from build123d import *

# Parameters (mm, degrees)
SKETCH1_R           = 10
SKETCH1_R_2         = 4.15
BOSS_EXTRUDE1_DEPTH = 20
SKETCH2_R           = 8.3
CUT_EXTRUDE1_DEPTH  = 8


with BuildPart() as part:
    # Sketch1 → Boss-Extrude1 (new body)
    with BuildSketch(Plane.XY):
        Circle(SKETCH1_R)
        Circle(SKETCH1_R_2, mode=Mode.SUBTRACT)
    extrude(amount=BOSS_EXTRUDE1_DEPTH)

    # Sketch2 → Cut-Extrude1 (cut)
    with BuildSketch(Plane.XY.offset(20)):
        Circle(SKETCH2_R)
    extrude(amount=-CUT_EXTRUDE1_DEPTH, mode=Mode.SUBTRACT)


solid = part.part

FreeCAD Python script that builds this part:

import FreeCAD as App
import Part
import Sketcher
from FreeCAD import Vector

doc = App.newDocument("Part")
params = doc.addObject("Spreadsheet::Sheet", "Params")
for row, (alias, value) in enumerate([
    ("sketch1_diameter", "20 mm"),
    ("sketch1_diameter2", "8.3 mm"),
    ("pad1_length", "20 mm"),
    ("sketch2_diameter", "16.6 mm"),
    ("pocket1_length", "8 mm"),
], start=1):
    params.set(f"A{row}", alias)
    params.set(f"B{row}", "=" + value)
    params.setAlias(f"B{row}", alias)

body = doc.addObject("PartDesign::Body", "Body")

# Sketch on XY plane
sketch1 = body.newObject("Sketcher::SketchObject", "Sketch")
sketch1.AttachmentSupport = (doc.getObject("XY_Plane"), [""])
sketch1.MapMode = "FlatFace"
sketch1.addGeometry(Part.Circle(Vector(0, 0, 0), Vector(0, 0, 1), 10), False)
sketch1.addGeometry(Part.Circle(Vector(0, 0, 0), Vector(0, 0, 1), 4.15), False)
sketch1.addConstraint(Sketcher.Constraint("Coincident", 0, 3, -1, 1))
sketch1.addConstraint(Sketcher.Constraint("Coincident", 1, 3, -1, 1))
sketch1.addConstraint(Sketcher.Constraint("Diameter", 0, 20.0))
sketch1.addConstraint(Sketcher.Constraint("Diameter", 1, 8.3))
sketch1.setExpression("Constraints[2]", "Params.sketch1_diameter")
sketch1.setExpression("Constraints[3]", "Params.sketch1_diameter2")
pad1 = body.newObject("PartDesign::Pad", "Pad")
pad1.Profile = sketch1
pad1.setExpression("Length", "Params.pad1_length")

# Sketch on XY plane
sketch2 = body.newObject("Sketcher::SketchObject", "Sketch001")
sketch2.AttachmentSupport = (doc.getObject("XY_Plane"), [""])
sketch2.MapMode = "FlatFace"
sketch2.AttachmentOffset = App.Placement(Vector(0, 0, 20), App.Rotation())
sketch2.addGeometry(Part.Circle(Vector(0, 0, 0), Vector(0, 0, 1), 8.3), False)
sketch2.addConstraint(Sketcher.Constraint("Coincident", 0, 3, -1, 1))
sketch2.addConstraint(Sketcher.Constraint("Diameter", 0, 16.6))
sketch2.setExpression("Constraints[1]", "Params.sketch2_diameter")
pocket1 = body.newObject("PartDesign::Pocket", "Pocket")
pocket1.Profile = sketch2
pocket1.setExpression("Length", "Params.pocket1_length")

doc.recompute()
